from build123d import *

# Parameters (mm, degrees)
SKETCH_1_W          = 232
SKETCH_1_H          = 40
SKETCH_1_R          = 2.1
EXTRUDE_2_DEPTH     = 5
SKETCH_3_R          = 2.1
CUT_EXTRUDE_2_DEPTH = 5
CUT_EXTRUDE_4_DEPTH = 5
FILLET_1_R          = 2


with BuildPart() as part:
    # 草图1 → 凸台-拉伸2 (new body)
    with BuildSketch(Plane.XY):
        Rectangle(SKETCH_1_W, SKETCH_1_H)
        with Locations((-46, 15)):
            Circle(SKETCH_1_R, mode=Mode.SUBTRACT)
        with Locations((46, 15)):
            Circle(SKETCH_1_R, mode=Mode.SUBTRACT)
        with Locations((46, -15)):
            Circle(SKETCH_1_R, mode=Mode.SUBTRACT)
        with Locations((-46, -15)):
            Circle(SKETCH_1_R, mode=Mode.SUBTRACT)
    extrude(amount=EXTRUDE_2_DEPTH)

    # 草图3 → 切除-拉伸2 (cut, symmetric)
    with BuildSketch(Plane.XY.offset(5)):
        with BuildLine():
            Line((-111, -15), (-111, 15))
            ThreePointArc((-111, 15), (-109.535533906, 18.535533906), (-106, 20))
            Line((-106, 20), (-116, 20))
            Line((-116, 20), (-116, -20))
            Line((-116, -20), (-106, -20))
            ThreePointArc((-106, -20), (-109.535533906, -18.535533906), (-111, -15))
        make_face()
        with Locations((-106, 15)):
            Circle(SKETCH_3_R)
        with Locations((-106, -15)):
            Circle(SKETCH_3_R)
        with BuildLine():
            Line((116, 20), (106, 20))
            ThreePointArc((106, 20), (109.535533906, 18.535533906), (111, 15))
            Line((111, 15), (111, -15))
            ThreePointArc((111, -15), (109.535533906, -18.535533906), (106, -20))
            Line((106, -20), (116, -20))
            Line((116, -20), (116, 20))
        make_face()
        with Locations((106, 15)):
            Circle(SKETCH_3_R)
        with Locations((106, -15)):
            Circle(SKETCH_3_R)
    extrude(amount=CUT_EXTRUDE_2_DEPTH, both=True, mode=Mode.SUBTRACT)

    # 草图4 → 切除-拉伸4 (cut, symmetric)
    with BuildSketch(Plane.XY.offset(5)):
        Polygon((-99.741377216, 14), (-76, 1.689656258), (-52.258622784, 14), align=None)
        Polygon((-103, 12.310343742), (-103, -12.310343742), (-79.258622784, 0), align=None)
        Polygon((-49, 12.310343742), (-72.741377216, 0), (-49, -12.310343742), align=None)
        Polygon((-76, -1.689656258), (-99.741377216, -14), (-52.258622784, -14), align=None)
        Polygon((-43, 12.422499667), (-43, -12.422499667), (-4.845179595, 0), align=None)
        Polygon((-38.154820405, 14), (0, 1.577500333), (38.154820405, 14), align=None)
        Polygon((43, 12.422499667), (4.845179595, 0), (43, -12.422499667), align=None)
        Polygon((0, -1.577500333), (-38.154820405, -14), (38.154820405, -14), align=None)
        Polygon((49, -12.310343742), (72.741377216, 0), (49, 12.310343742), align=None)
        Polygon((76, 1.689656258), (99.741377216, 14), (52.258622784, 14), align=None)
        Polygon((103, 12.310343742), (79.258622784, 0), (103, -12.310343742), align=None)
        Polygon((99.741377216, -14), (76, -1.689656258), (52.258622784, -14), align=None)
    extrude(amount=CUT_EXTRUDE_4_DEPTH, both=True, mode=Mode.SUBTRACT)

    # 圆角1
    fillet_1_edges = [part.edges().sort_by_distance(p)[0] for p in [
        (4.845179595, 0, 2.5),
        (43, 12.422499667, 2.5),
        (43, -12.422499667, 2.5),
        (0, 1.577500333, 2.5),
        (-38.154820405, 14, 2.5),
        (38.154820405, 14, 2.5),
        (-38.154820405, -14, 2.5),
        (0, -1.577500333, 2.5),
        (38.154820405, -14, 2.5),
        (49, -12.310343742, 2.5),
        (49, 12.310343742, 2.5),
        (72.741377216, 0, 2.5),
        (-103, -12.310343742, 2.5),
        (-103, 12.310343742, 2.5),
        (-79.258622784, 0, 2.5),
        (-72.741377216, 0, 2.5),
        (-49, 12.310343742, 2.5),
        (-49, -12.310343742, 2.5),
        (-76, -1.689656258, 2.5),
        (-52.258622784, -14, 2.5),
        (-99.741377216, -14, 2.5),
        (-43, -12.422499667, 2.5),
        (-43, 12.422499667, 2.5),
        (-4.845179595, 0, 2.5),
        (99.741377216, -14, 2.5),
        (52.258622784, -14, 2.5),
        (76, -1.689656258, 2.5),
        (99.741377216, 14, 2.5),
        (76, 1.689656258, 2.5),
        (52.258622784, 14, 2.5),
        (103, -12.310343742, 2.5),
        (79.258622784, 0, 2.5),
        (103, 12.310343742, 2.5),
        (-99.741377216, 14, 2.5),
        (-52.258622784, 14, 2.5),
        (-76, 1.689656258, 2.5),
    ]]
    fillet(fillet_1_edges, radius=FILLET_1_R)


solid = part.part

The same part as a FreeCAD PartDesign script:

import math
import FreeCAD as App
import Part
import Sketcher
from FreeCAD import Vector


def edges_at(feature, points):
    """Names of the edges that pass closest to the given points."""
    edges = feature.Shape.Edges
    near = lambda p: min(range(len(edges)), key=lambda i: edges[i].distToShape(Part.Vertex(*p))[0])
    return sorted({f"Edge{near(p) + 1}" for p in points})

doc = App.newDocument("Part")
body = doc.addObject("PartDesign::Body", "Body")

# Sketch on XY plane
sketch1 = body.newObject("Sketcher::SketchObject", "Sketch")
sketch1.AttachmentSupport = (doc.getObject("XY_Plane"), [""])
sketch1.MapMode = "FlatFace"
sketch1.addGeometry([
    Part.LineSegment(Vector(-116, 20, 0), Vector(-116, -20, 0)),  # 0
    Part.LineSegment(Vector(-116, -20, 0), Vector(116, -20, 0)),  # 1
    Part.LineSegment(Vector(116, -20, 0), Vector(116, 20, 0)),  # 2
    Part.LineSegment(Vector(116, 20, 0), Vector(-116, 20, 0)),  # 3
    Part.Circle(Vector(-46, -15, 0), Vector(0, 0, 1), 2.1),  # 4
    Part.Circle(Vector(46, -15, 0), Vector(0, 0, 1), 2.1),  # 5
    Part.Circle(Vector(-46, 15, 0), Vector(0, 0, 1), 2.1),  # 6
    Part.Circle(Vector(46, 15, 0), Vector(0, 0, 1), 2.1),  # 7
], False)
sketch1.addConstraint([
    Sketcher.Constraint("Coincident", 0, 2, 1, 1),
    Sketcher.Constraint("Coincident", 1, 2, 2, 1),
    Sketcher.Constraint("Coincident", 2, 2, 3, 1),
    Sketcher.Constraint("Coincident", 3, 2, 0, 1),
    Sketcher.Constraint("Vertical", 0),
    Sketcher.Constraint("Horizontal", 1),
    Sketcher.Constraint("Vertical", 2),
    Sketcher.Constraint("Horizontal", 3),
    Sketcher.Constraint("Equal", 4, 5),
    Sketcher.Constraint("Equal", 5, 6),
    Sketcher.Constraint("Equal", 6, 7),
    Sketcher.Constraint("Symmetric", 5, 3, 6, 3, -1, 1),
    Sketcher.Constraint("Symmetric", 4, 3, 7, 3, -1, 1),
    Sketcher.Constraint("Symmetric", 0, 2, 2, 2, -1, 1),
    Sketcher.Constraint("Symmetric", 4, 3, 5, 3, -2),
    Sketcher.Constraint("Diameter", 4, 4.2),
    Sketcher.Constraint("DistanceX", 1, 1, 1, 2, 232.0),
    Sketcher.Constraint("DistanceY", 0, 2, 0, 1, 40.0),
    Sketcher.Constraint("DistanceX", 4, 3, -1, 1, 46.0),
    Sketcher.Constraint("DistanceY", 4, 3, -1, 1, 15.0),
])
pad1 = body.newObject("PartDesign::Pad", "Pad")
pad1.Profile = sketch1
pad1.Length = 5

# Sketch on XY plane
sketch2 = body.newObject("Sketcher::SketchObject", "Sketch001")
sketch2.AttachmentSupport = (doc.getObject("XY_Plane"), [""])
sketch2.MapMode = "FlatFace"
sketch2.AttachmentOffset = App.Placement(Vector(0, 0, 5), App.Rotation())
sketch2.addGeometry([
    Part.LineSegment(Vector(-111, -15, 0), Vector(-111, 15, 0)),  # 0
    Part.ArcOfCircle(Part.Circle(Vector(-106, 15, 0), Vector(0, 0, 1), 5), math.radians(90), math.radians(180)),  # 1
    Part.LineSegment(Vector(-106, 20, 0), Vector(-116, 20, 0)),  # 2
    Part.LineSegment(Vector(-116, 20, 0), Vector(-116, -20, 0)),  # 3
    Part.LineSegment(Vector(-116, -20, 0), Vector(-106, -20, 0)),  # 4
    Part.ArcOfCircle(Part.Circle(Vector(-106, -15, 0), Vector(0, 0, 1), 5), math.radians(180), math.radians(270)),  # 5
    Part.Circle(Vector(-106, 15, 0), Vector(0, 0, 1), 2.1),  # 6
    Part.Circle(Vector(-106, -15, 0), Vector(0, 0, 1), 2.1),  # 7
    Part.LineSegment(Vector(116, 20, 0), Vector(106, 20, 0)),  # 8
    Part.ArcOfCircle(Part.Circle(Vector(106, 15, 0), Vector(0, 0, 1), 5), math.radians(0), math.radians(90)),  # 9
    Part.LineSegment(Vector(111, 15, 0), Vector(111, -15, 0)),  # 10
    Part.ArcOfCircle(Part.Circle(Vector(106, -15, 0), Vector(0, 0, 1), 5), math.radians(-90), math.radians(0)),  # 11
    Part.LineSegment(Vector(106, -20, 0), Vector(116, -20, 0)),  # 12
    Part.LineSegment(Vector(116, -20, 0), Vector(116, 20, 0)),  # 13
    Part.Circle(Vector(106, 15, 0), Vector(0, 0, 1), 2.1),  # 14
    Part.Circle(Vector(106, -15, 0), Vector(0, 0, 1), 2.1),  # 15
], False)
sketch2.addConstraint([
    Sketcher.Constraint("Tangent", 0, 2, 1, 2),
    Sketcher.Constraint("Tangent", 1, 1, 2, 1),
    Sketcher.Constraint("Coincident", 2, 2, 3, 1),
    Sketcher.Constraint("Coincident", 3, 2, 4, 1),
    Sketcher.Constraint("Tangent", 4, 2, 5, 2),
    Sketcher.Constraint("Tangent", 5, 1, 0, 1),
    Sketcher.Constraint("Tangent", 8, 2, 9, 2),
    Sketcher.Constraint("Tangent", 9, 1, 10, 1),
    Sketcher.Constraint("Tangent", 10, 2, 11, 2),
    Sketcher.Constraint("Tangent", 11, 1, 12, 1),
    Sketcher.Constraint("Coincident", 12, 2, 13, 1),
    Sketcher.Constraint("Coincident", 13, 2, 8, 1),
    Sketcher.Constraint("Vertical", 0),
    Sketcher.Constraint("Horizontal", 2),
    Sketcher.Constraint("Vertical", 3),
    Sketcher.Constraint("Horizontal", 4),
    Sketcher.Constraint("Horizontal", 8),
    Sketcher.Constraint("Vertical", 10),
    Sketcher.Constraint("Horizontal", 12),
    Sketcher.Constraint("Vertical", 13),
    Sketcher.Constraint("Coincident", 6, 3, 1, 3),
    Sketcher.Constraint("Coincident", 7, 3, 5, 3),
    Sketcher.Constraint("Coincident", 14, 3, 9, 3),
    Sketcher.Constraint("Coincident", 15, 3, 11, 3),
    Sketcher.Constraint("Equal", 1, 5),
    Sketcher.Constraint("Equal", 6, 7),
    Sketcher.Constraint("Equal", 5, 9),
    Sketcher.Constraint("Equal", 9, 11),
    Sketcher.Constraint("Equal", 7, 14),
    Sketcher.Constraint("Equal", 14, 15),
    Sketcher.Constraint("Symmetric", 5, 3, 9, 3, -1, 1),
    Sketcher.Constraint("Symmetric", 2, 2, 12, 2, -1, 1),
    Sketcher.Constraint("Horizontal", 6, 3, 9, 3),
    Sketcher.Constraint("Radius", 1, 5.0),
    Sketcher.Constraint("Diameter", 6, 4.2),
    Sketcher.Constraint("DistanceX", 2, 2, 2, 1, 10.0),
    Sketcher.Constraint("DistanceY", 0, 1, 0, 2, 30.0),
    Sketcher.Constraint("DistanceX", 1, 3, -1, 1, 106.0),
])
pocket1 = body.newObject("PartDesign::Pocket", "Pocket")
pocket1.Profile = sketch2
pocket1.Length = 10
pocket1.Midplane = True

# Sketch on XY plane
sketch3 = body.newObject("Sketcher::SketchObject", "Sketch002")
sketch3.AttachmentSupport = (doc.getObject("XY_Plane"), [""])
sketch3.MapMode = "FlatFace"
sketch3.AttachmentOffset = App.Placement(Vector(0, 0, 5), App.Rotation())
sketch3.addGeometry([
    Part.LineSegment(Vector(-100, 14, 0), Vector(-76, 2, 0)),  # 0
    Part.LineSegment(Vector(-76, 2, 0), Vector(-52, 14, 0)),  # 1
    Part.LineSegment(Vector(-52, 14, 0), Vector(-100, 14, 0)),  # 2
    Part.LineSegment(Vector(-103, 12, 0), Vector(-103, -12, 0)),  # 3
    Part.LineSegment(Vector(-103, -12, 0), Vector(-79, 0, 0)),  # 4
    Part.LineSegment(Vector(-79, 0, 0), Vector(-103, 12, 0)),  # 5
    Part.LineSegment(Vector(-49, 12, 0), Vector(-73, 0, 0)),  # 6
    Part.LineSegment(Vector(-73, 0, 0), Vector(-49, -12, 0)),  # 7
    Part.LineSegment(Vector(-49, -12, 0), Vector(-49, 12, 0)),  # 8
    Part.LineSegment(Vector(-76, -2, 0), Vector(-100, -14, 0)),  # 9
    Part.LineSegment(Vector(-100, -14, 0), Vector(-52, -14, 0)),  # 10
    Part.LineSegment(Vector(-52, -14, 0), Vector(-76, -2, 0)),  # 11
    Part.LineSegment(Vector(-43, 12, 0), Vector(-43, -12, 0)),  # 12
    Part.LineSegment(Vector(-43, -12, 0), Vector(-5, 0, 0)),  # 13
    Part.LineSegment(Vector(-5, 0, 0), Vector(-43, 12, 0)),  # 14
    Part.LineSegment(Vector(-38, 14, 0), Vector(0, 2, 0)),  # 15
    Part.LineSegment(Vector(0, 2, 0), Vector(38, 14, 0)),  # 16
    Part.LineSegment(Vector(38, 14, 0), Vector(-38, 14, 0)),  # 17
    Part.LineSegment(Vector(43, 12, 0), Vector(5, 0, 0)),  # 18
    Part.LineSegment(Vector(5, 0, 0), Vector(43, -12, 0)),  # 19
    Part.LineSegment(Vector(43, -12, 0), Vector(43, 12, 0)),  # 20
    Part.LineSegment(Vector(0, -2, 0), Vector(-38, -14, 0)),  # 21
    Part.LineSegment(Vector(-38, -14, 0), Vector(38, -14, 0)),  # 22
    Part.LineSegment(Vector(38, -14, 0), Vector(0, -2, 0)),  # 23
    Part.LineSegment(Vector(49, -12, 0), Vector(73, 0, 0)),  # 24
    Part.LineSegment(Vector(73, 0, 0), Vector(49, 12, 0)),  # 25
    Part.LineSegment(Vector(49, 12, 0), Vector(49, -12, 0)),  # 26
    Part.LineSegment(Vector(76, 2, 0), Vector(100, 14, 0)),  # 27
    Part.LineSegment(Vector(100, 14, 0), Vector(52, 14, 0)),  # 28
    Part.LineSegment(Vector(52, 14, 0), Vector(76, 2, 0)),  # 29
    Part.LineSegment(Vector(103, 12, 0), Vector(79, 0, 0)),  # 30
    Part.LineSegment(Vector(79, 0, 0), Vector(103, -12, 0)),  # 31
    Part.LineSegment(Vector(103, -12, 0), Vector(103, 12, 0)),  # 32
    Part.LineSegment(Vector(100, -14, 0), Vector(76, -2, 0)),  # 33
    Part.LineSegment(Vector(76, -2, 0), Vector(52, -14, 0)),  # 34
    Part.LineSegment(Vector(52, -14, 0), Vector(100, -14, 0)),  # 35
], False)
sketch3.addConstraint([
    Sketcher.Constraint("Coincident", 0, 2, 1, 1),
    Sketcher.Constraint("Coincident", 1, 2, 2, 1),
    Sketcher.Constraint("Coincident", 2, 2, 0, 1),
    Sketcher.Constraint("Coincident", 3, 2, 4, 1),
    Sketcher.Constraint("Coincident", 4, 2, 5, 1),
    Sketcher.Constraint("Coincident", 5, 2, 3, 1),
    Sketcher.Constraint("Coincident", 6, 2, 7, 1),
    Sketcher.Constraint("Coincident", 7, 2, 8, 1),
    Sketcher.Constraint("Coincident", 8, 2, 6, 1),
    Sketcher.Constraint("Coincident", 9, 2, 10, 1),
    Sketcher.Constraint("Coincident", 10, 2, 11, 1),
    Sketcher.Constraint("Coincident", 11, 2, 9, 1),
    Sketcher.Constraint("Coincident", 12, 2, 13, 1),
    Sketcher.Constraint("Coincident", 13, 2, 14, 1),
    Sketcher.Constraint("Coincident", 14, 2, 12, 1),
    Sketcher.Constraint("Coincident", 15, 2, 16, 1),
    Sketcher.Constraint("Coincident", 16, 2, 17, 1),
    Sketcher.Constraint("Coincident", 17, 2, 15, 1),
    Sketcher.Constraint("Coincident", 18, 2, 19, 1),
    Sketcher.Constraint("Coincident", 19, 2, 20, 1),
    Sketcher.Constraint("Coincident", 20, 2, 18, 1),
    Sketcher.Constraint("Coincident", 21, 2, 22, 1),
    Sketcher.Constraint("Coincident", 22, 2, 23, 1),
    Sketcher.Constraint("Coincident", 23, 2, 21, 1),
    Sketcher.Constraint("Coincident", 24, 2, 25, 1),
    Sketcher.Constraint("Coincident", 25, 2, 26, 1),
    Sketcher.Constraint("Coincident", 26, 2, 24, 1),
    Sketcher.Constraint("Coincident", 27, 2, 28, 1),
    Sketcher.Constraint("Coincident", 28, 2, 29, 1),
    Sketcher.Constraint("Coincident", 29, 2, 27, 1),
    Sketcher.Constraint("Coincident", 30, 2, 31, 1),
    Sketcher.Constraint("Coincident", 31, 2, 32, 1),
    Sketcher.Constraint("Coincident", 32, 2, 30, 1),
    Sketcher.Constraint("Coincident", 33, 2, 34, 1),
    Sketcher.Constraint("Coincident", 34, 2, 35, 1),
    Sketcher.Constraint("Coincident", 35, 2, 33, 1),
    Sketcher.Constraint("Horizontal", 2),
    Sketcher.Constraint("Vertical", 3),
    Sketcher.Constraint("Vertical", 8),
    Sketcher.Constraint("Horizontal", 10),
    Sketcher.Constraint("Vertical", 12),
    Sketcher.Constraint("Horizontal", 17),
    Sketcher.Constraint("Vertical", 20),
    Sketcher.Constraint("Horizontal", 22),
    Sketcher.Constraint("Vertical", 26),
    Sketcher.Constraint("Horizontal", 28),
    Sketcher.Constraint("Vertical", 32),
    Sketcher.Constraint("Horizontal", 35),
    Sketcher.Constraint("Symmetric", 13, 2, 18, 2, -1, 1),
    Sketcher.Constraint("Symmetric", 14, 2, 19, 2, -1, 1),
    Sketcher.Constraint("Symmetric", 16, 2, 21, 2, -1, 1),
    Sketcher.Constraint("Symmetric", 15, 2, 23, 2, -1, 1),
    Sketcher.Constraint("Symmetric", 6, 2, 24, 2, -1, 1),
    Sketcher.Constraint("Symmetric", 7, 2, 25, 2, -1, 1),
    Sketcher.Constraint("Symmetric", 9, 2, 27, 2, -1, 1),
    Sketcher.Constraint("Symmetric", 11, 2, 29, 2, -1, 1),
    Sketcher.Constraint("Symmetric", 4, 2, 30, 2, -1, 1),
    Sketcher.Constraint("Symmetric", 5, 2, 31, 2, -1, 1),
    Sketcher.Constraint("Symmetric", 0, 2, 33, 2, -1, 1),
    Sketcher.Constraint("Symmetric", 1, 2, 34, 2, -1, 1),
    Sketcher.Constraint("Symmetric", 2, 2, 27, 2, -2),
    Sketcher.Constraint("Symmetric", 0, 2, 29, 2, -2),
    Sketcher.Constraint("PointOnObject", 4, 2, -1),
    Sketcher.Constraint("PointOnObject", 6, 2, -1),
    Sketcher.Constraint("PointOnObject", 13, 2, -1),
    Sketcher.Constraint("PointOnObject", 15, 2, -2),
    Sketcher.Constraint("Parallel", 1, 4),
    Sketcher.Constraint("Parallel", 0, 5),
    Sketcher.Constraint("Parallel", 4, 6),
    Sketcher.Constraint("Parallel", 5, 7),
    Sketcher.Constraint("Parallel", 6, 9),
    Sketcher.Constraint("Parallel", 7, 11),
    Sketcher.Constraint("Parallel", 14, 15),
    Sketcher.Constraint("Parallel", 13, 16),
    Sketcher.Constraint("Parallel", 16, 18),
    Sketcher.Constraint("Parallel", 19, 23),
    Sketcher.Constraint("Parallel", 9, 24),
    Sketcher.Constraint("Parallel", 25, 29),
    Sketcher.Constraint("Parallel", 27, 30),
    Sketcher.Constraint("Parallel", 31, 33),
    Sketcher.Constraint("Horizontal", 3, 2, 7, 2),
    Sketcher.Constraint("Horizontal", 2, 2, 16, 2),
    Sketcher.Constraint("Horizontal", 12, 2, 19, 2),
    Sketcher.Constraint("Equal", 1, 4),
    Sketcher.Constraint("Equal", 14, 15),
    Sketcher.Constraint("DistanceX", 0, 2, -1, 1, 76.0),
    Sketcher.Constraint("DistanceY", -1, 1, 1, 2, 14.0),
    Sketcher.Constraint("DistanceX", 3, 2, -1, 1, 103.0),
    Sketcher.Constraint("DistanceX", 7, 2, -1, 1, 49.0),
    Sketcher.Constraint("DistanceX", 12, 2, -1, 1, 43.0),
    Sketcher.Constraint("DistanceY", 12, 2, 12, 1, 24.844999),
    Sketcher.Constraint("DistanceX", 17, 2, 17, 1, 76.309641),
    Sketcher.Constraint("DistanceX", 2, 2, 2, 1, 47.482754),
    Sketcher.Constraint("DistanceY", 3, 2, 3, 1, 24.620687),
])
pocket2 = body.newObject("PartDesign::Pocket", "Pocket001")
pocket2.Profile = sketch3
pocket2.Length = 10
pocket2.Midplane = True
doc.recompute()

fillet = body.newObject("PartDesign::Fillet", "Fillet")
fillet.Base = (pocket2, edges_at(pocket2, [
    (4.845, 0, 2.5),
    (43, 12.422, 2.5),
    (43, -12.422, 2.5),
    (0, 1.578, 2.5),
    (-38.155, 14, 2.5),
    (38.155, 14, 2.5),
    (-38.155, -14, 2.5),
    (0, -1.578, 2.5),
    (38.155, -14, 2.5),
    (49, -12.31, 2.5),
    (49, 12.31, 2.5),
    (72.741, 0, 2.5),
    (-103, -12.31, 2.5),
    (-103, 12.31, 2.5),
    (-79.259, 0, 2.5),
    (-72.741, 0, 2.5),
    (-49, 12.31, 2.5),
    (-49, -12.31, 2.5),
    (-76, -1.69, 2.5),
    (-52.259, -14, 2.5),
    (-99.741, -14, 2.5),
    (-43, -12.422, 2.5),
    (-43, 12.422, 2.5),
    (-4.845, 0, 2.5),
    (99.741, -14, 2.5),
    (52.259, -14, 2.5),
    (76, -1.69, 2.5),
    (99.741, 14, 2.5),
    (76, 1.69, 2.5),
    (52.259, 14, 2.5),
    (103, -12.31, 2.5),
    (79.259, 0, 2.5),
    (103, 12.31, 2.5),
    (-99.741, 14, 2.5),
    (-52.259, 14, 2.5),
    (-76, 1.69, 2.5),
]))
fillet.Radius = 2

doc.recompute()
